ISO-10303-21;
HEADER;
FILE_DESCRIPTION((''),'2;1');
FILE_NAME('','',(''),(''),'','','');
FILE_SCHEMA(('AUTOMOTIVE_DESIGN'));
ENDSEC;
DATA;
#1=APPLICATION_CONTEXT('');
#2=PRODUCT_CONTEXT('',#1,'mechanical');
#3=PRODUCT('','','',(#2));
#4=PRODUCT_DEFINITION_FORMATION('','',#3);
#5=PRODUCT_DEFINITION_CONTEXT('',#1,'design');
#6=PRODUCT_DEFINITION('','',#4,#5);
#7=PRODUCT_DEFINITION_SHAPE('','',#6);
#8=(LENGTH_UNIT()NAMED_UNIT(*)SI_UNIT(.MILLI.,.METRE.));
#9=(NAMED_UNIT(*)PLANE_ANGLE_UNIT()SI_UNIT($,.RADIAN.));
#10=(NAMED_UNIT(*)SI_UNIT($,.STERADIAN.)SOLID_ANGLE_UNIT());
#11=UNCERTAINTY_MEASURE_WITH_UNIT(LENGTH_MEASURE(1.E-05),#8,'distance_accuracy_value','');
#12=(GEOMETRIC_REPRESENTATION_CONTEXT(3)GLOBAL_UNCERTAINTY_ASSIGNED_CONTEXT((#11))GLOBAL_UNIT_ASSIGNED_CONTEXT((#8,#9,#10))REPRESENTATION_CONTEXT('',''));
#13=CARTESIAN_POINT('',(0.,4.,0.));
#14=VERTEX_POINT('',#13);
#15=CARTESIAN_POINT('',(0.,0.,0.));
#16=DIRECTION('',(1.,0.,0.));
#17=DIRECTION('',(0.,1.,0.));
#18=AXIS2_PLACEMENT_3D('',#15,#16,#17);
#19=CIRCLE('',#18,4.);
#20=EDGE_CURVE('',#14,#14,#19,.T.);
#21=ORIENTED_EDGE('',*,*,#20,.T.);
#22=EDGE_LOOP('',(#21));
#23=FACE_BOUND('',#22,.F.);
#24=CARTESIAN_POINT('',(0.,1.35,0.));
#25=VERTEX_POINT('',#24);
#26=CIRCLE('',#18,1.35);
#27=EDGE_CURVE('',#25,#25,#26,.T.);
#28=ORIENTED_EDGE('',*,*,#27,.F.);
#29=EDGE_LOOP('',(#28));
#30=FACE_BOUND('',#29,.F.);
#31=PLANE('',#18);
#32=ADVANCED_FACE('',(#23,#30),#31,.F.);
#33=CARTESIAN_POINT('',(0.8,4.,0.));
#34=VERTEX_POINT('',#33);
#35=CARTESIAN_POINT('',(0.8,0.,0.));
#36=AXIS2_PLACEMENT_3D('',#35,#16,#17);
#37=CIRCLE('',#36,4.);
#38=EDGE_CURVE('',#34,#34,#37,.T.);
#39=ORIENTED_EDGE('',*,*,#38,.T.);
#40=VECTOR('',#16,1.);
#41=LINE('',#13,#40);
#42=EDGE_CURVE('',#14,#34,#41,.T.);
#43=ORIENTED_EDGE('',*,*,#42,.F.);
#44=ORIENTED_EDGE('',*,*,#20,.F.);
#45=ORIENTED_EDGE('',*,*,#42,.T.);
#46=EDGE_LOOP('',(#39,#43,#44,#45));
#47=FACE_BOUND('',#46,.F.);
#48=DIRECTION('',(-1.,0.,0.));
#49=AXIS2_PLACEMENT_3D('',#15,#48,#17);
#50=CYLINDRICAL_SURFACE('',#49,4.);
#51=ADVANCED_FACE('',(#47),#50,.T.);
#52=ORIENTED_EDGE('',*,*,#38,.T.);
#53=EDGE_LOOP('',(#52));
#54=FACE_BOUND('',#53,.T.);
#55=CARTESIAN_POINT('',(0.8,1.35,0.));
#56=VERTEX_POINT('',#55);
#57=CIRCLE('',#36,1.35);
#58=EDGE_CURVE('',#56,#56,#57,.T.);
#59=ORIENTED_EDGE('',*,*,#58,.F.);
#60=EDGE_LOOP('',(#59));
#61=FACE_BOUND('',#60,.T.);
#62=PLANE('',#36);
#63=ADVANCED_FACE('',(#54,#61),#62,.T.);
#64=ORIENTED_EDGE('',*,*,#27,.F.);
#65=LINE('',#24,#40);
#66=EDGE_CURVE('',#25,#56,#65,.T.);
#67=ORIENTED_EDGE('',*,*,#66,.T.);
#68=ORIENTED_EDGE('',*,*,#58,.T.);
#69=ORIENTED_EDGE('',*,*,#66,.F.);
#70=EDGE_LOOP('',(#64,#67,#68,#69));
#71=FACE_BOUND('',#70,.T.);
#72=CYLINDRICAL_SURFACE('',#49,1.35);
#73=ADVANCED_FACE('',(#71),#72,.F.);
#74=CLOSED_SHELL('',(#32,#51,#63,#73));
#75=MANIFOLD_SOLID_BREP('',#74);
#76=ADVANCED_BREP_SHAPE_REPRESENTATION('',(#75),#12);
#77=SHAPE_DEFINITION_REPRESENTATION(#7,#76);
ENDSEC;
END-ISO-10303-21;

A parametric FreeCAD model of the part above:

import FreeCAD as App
import Part
import Sketcher
from FreeCAD import Vector

doc = App.newDocument("Part")
body = doc.addObject("PartDesign::Body", "Body")

sketch1 = doc.addObject("Sketcher::SketchObject", "Sketch")
body.addObject(sketch1)
sketch1.AttachmentSupport = (doc.YZ_Plane, [""])
sketch1.MapMode = "FlatFace"
sketch1.addGeometry([
    Part.Circle(Vector(0, 0, 0), Vector(0, 0, 1), 4),
    Part.Circle(Vector(0, 0, 0), Vector(0, 0, 1), 1.35),
], False)
sketch1.addConstraint([
    Sketcher.Constraint("Coincident", 0, 3, -1, 1),
    Sketcher.Constraint("Coincident", 1, 3, -1, 1),
    Sketcher.Constraint("Diameter", 0, 8.0),
    Sketcher.Constraint("Diameter", 1, 2.7),
])
pad1 = doc.addObject("PartDesign::Pad", "Pad")
body.addObject(pad1)
pad1.Profile = sketch1
pad1.Length = 0.8

doc.recompute()
